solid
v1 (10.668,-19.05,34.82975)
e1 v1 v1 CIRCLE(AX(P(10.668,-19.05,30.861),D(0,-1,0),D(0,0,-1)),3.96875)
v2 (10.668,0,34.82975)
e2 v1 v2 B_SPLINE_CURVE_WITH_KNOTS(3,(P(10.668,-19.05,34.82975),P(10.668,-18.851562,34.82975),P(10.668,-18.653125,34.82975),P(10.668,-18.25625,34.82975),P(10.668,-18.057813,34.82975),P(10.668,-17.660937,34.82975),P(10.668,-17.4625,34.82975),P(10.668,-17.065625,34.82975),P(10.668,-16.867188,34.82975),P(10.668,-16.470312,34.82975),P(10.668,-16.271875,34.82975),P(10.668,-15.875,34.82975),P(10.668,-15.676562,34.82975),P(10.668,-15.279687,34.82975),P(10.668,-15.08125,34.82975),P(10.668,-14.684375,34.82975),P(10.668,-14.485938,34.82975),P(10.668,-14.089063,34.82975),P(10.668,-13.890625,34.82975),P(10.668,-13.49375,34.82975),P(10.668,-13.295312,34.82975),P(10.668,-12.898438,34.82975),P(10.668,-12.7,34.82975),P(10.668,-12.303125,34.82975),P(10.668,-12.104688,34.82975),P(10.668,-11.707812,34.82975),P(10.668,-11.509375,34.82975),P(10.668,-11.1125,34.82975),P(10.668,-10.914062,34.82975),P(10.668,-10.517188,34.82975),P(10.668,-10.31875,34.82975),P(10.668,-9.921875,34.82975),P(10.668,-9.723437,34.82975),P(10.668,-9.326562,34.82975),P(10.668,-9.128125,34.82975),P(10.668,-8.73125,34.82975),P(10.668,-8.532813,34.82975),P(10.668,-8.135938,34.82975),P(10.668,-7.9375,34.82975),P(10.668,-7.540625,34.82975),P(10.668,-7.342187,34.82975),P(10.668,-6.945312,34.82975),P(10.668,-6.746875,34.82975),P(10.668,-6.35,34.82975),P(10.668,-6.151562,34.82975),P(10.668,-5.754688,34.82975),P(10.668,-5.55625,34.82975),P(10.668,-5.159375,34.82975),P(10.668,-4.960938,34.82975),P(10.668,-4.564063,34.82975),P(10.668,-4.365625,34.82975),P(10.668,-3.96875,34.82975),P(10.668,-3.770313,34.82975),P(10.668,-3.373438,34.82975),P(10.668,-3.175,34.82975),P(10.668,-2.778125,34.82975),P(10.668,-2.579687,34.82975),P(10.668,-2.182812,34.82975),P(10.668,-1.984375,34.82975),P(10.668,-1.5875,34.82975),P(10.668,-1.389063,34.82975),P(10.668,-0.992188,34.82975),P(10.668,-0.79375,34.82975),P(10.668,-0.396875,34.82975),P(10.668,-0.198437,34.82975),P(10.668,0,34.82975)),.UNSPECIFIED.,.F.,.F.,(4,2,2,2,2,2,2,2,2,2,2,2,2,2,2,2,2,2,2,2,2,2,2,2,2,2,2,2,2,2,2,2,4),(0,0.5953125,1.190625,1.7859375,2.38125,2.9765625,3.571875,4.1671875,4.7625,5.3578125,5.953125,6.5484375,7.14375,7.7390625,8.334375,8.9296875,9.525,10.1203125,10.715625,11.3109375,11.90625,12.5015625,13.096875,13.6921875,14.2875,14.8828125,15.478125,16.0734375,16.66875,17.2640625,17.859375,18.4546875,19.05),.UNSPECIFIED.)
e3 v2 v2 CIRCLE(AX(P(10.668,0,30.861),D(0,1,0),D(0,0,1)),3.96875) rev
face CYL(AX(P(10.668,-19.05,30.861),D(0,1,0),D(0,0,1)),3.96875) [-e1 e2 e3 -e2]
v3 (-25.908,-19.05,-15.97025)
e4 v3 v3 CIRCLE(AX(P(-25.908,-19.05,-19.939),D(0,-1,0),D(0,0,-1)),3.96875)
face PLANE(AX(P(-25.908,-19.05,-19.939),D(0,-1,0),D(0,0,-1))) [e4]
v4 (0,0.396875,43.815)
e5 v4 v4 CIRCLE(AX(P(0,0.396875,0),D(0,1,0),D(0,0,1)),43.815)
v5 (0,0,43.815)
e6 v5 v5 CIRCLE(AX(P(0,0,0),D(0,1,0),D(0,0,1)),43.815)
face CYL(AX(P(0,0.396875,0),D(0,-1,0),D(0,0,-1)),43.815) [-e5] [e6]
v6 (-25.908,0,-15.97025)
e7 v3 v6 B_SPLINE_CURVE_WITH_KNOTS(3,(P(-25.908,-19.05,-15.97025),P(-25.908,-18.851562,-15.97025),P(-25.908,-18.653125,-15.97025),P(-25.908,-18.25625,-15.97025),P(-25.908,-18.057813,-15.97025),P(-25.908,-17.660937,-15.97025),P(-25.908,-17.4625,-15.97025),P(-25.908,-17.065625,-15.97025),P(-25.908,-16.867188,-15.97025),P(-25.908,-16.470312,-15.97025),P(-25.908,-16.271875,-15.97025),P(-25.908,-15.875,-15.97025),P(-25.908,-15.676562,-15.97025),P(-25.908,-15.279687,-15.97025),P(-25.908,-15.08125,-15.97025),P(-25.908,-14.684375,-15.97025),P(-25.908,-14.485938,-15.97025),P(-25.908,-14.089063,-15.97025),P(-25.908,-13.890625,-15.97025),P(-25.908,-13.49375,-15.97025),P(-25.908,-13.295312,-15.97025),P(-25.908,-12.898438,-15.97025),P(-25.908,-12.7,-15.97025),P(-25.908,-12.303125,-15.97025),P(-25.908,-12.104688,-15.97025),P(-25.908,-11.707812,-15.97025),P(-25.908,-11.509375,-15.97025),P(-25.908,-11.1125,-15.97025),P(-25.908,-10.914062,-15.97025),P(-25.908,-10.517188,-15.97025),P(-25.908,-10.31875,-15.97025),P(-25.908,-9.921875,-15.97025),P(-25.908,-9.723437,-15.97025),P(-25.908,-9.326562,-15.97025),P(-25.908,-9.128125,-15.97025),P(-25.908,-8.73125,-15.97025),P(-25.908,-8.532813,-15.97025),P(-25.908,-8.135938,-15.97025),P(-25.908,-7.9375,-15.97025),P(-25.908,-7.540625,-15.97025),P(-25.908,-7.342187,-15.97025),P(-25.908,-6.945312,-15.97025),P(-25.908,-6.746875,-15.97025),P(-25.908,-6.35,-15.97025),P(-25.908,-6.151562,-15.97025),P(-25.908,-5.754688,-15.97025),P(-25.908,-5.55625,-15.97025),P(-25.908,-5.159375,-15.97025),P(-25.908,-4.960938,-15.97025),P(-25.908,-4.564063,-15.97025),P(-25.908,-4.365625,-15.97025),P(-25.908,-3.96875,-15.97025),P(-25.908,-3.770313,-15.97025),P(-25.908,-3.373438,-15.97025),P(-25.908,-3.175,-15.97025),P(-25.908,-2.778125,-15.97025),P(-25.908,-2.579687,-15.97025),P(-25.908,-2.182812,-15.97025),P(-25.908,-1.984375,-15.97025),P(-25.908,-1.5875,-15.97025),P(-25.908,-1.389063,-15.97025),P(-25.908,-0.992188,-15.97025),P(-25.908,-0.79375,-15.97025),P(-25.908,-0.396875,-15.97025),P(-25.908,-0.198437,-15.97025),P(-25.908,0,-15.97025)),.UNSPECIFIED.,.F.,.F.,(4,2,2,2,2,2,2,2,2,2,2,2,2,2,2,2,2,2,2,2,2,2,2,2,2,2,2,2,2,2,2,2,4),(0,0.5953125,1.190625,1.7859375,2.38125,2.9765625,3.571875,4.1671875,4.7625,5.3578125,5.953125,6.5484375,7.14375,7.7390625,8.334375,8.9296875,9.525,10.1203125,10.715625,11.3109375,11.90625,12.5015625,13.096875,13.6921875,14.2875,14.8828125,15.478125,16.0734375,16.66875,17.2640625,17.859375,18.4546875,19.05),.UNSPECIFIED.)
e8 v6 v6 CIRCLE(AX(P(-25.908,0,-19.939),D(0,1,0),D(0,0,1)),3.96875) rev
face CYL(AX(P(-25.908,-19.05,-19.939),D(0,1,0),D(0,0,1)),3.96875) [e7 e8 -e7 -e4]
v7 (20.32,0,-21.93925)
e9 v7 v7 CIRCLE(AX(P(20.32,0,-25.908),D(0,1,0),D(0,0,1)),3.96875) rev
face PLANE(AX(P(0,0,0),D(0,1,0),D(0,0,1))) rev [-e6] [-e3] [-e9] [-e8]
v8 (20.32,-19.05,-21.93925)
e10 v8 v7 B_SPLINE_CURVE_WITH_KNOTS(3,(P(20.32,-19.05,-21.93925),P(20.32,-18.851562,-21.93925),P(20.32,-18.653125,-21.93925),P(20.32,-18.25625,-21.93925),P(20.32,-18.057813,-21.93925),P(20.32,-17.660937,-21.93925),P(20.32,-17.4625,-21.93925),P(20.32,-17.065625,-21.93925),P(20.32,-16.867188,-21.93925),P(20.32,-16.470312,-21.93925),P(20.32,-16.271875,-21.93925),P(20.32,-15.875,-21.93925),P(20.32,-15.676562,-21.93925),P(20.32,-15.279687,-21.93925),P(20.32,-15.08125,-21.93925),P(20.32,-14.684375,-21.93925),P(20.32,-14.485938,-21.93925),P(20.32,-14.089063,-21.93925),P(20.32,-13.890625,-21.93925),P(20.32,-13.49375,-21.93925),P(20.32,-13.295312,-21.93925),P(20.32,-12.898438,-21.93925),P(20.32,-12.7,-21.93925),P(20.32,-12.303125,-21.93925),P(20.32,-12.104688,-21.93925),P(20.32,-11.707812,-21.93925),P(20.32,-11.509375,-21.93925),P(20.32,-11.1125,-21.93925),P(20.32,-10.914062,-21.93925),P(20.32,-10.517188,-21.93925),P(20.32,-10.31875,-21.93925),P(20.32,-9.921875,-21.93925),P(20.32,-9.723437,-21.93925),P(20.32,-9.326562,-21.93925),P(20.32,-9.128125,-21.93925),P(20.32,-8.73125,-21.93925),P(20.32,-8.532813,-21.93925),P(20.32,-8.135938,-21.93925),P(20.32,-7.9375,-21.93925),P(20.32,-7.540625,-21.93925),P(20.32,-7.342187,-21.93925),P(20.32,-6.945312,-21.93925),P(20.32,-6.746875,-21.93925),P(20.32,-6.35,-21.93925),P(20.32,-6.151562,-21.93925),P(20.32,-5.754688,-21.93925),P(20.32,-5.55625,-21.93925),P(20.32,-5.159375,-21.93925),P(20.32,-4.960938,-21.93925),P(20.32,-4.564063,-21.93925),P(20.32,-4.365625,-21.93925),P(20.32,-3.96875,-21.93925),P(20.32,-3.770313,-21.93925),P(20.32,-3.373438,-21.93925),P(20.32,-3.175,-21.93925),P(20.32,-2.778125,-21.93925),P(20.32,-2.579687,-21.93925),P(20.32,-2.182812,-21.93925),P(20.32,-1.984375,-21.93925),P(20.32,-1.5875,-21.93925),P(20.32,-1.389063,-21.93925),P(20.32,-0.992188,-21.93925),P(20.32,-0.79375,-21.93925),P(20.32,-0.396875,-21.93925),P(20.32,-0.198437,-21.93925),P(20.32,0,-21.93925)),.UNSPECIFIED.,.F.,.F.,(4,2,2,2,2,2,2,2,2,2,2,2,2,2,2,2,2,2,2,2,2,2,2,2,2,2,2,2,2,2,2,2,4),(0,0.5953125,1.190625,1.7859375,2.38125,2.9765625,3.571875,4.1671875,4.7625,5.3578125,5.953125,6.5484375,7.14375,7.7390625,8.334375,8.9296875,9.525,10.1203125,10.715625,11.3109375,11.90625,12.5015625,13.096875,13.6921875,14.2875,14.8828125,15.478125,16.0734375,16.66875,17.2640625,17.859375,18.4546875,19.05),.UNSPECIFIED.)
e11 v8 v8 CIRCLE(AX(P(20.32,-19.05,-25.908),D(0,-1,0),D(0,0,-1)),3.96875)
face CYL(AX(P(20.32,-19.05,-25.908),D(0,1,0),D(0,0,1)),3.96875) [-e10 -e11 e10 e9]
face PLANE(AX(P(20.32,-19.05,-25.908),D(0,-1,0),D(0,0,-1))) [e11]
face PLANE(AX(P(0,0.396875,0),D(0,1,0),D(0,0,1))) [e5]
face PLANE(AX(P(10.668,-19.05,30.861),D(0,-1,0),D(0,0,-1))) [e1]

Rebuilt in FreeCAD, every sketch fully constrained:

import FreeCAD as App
import Part
import Sketcher
Q = App.Units.Quantity

doc = App.newDocument("Part")
body = doc.addObject("PartDesign::Body", "Body")

# Sketch on XZ plane
sketch1 = doc.addObject("Sketcher::SketchObject", "Sketch")
body.addObject(sketch1)
sketch1.AttachmentSupport = (doc.XZ_Plane, [""])
sketch1.MapMode = "FlatFace"
sketch1.addGeometry(Part.Circle(App.Vector(0, 0, 0), App.Vector(0, 0, 1), 43.815), False)
sketch1.addConstraint(Sketcher.Constraint("Coincident", 0, 3, -1, 1))
sketch1.addConstraint(Sketcher.Constraint("Diameter", 0, Q("3.45 in")))
pad1 = doc.addObject("PartDesign::Pad", "Pad")
body.addObject(pad1)
pad1.Profile = sketch1
pad1.Length = Q("0.015625 in")
pad1.Reversed = True

# Sketch on XZ plane
sketch2 = doc.addObject("Sketcher::SketchObject", "Sketch001")
body.addObject(sketch2)
sketch2.AttachmentSupport = (doc.XZ_Plane, [""])
sketch2.MapMode = "FlatFace"
sketch2.addGeometry(Part.Circle(App.Vector(20.32, -25.908, 0), App.Vector(0, 0, 1), 3.96875), False)
sketch2.addGeometry(Part.Circle(App.Vector(-25.908, -19.939, 0), App.Vector(0, 0, 1), 3.96875), False)
sketch2.addGeometry(Part.Circle(App.Vector(10.668, 30.861, 0), App.Vector(0, 0, 1), 3.96875), False)
sketch2.addConstraint(Sketcher.Constraint("Equal", 0, 1))
sketch2.addConstraint(Sketcher.Constraint("Equal", 1, 2))
sketch2.addConstraint(Sketcher.Constraint("Diameter", 0, Q("0.3125 in")))
sketch2.addConstraint(Sketcher.Constraint("DistanceY", 1, 3, 2, 3, Q("2 in")))
sketch2.addConstraint(Sketcher.Constraint("DistanceX", -1, 1, 0, 3, Q("0.8 in")))
sketch2.addConstraint(Sketcher.Constraint("DistanceY", 0, 3, -1, 1, Q("1.02 in")))
sketch2.addConstraint(Sketcher.Constraint("DistanceX", 1, 3, -1, 1, Q("1.02 in")))
sketch2.addConstraint(Sketcher.Constraint("DistanceX", -1, 1, 2, 3, Q("0.42 in")))
sketch2.addConstraint(Sketcher.Constraint("DistanceY", 1, 3, -1, 1, Q("0.785 in")))
pad2 = doc.addObject("PartDesign::Pad", "Pad001")
body.addObject(pad2)
pad2.Profile = sketch2
pad2.Length = Q("0.75 in")

doc.recompute()
